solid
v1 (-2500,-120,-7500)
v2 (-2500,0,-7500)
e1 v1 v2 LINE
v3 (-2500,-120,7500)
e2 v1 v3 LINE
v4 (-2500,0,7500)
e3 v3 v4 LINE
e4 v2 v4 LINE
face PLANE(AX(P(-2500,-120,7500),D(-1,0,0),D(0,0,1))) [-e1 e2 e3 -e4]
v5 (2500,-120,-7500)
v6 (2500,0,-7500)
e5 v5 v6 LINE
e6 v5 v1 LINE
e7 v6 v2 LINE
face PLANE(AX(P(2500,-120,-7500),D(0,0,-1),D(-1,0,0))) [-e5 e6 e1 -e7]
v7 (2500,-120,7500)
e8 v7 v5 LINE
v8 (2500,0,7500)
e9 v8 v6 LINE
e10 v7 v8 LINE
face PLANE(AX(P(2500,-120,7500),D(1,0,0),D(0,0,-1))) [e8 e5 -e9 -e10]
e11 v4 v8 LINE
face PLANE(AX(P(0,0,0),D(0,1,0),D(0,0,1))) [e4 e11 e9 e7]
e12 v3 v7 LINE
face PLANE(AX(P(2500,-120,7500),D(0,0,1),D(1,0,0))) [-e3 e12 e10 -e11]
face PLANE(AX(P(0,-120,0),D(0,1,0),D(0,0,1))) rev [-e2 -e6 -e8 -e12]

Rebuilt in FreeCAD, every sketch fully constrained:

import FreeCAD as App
import Part
import Sketcher


def add_polygon(sketch, points):
    """Adds a closed chain of lines whose ends are joined by coincident constraints."""
    first, n = sketch.GeometryCount, len(points)
    for a, b in zip(points, points[1:] + points[:1]):
        sketch.addGeometry(Part.LineSegment(App.Vector(*a, 0), App.Vector(*b, 0)), False)
    for i in range(n):
        sketch.addConstraint(Sketcher.Constraint("Coincident", first + i, 2, first + (i + 1) % n, 1))

doc = App.newDocument("Part")
body = doc.addObject("PartDesign::Body", "Body")

sketch1 = body.newObject("Sketcher::SketchObject", "Sketch")
sketch1.AttachmentSupport = (doc.getObject("XZ_Plane"), [""])
sketch1.MapMode = "FlatFace"
add_polygon(sketch1, [(-2500, -7500), (-2500, 7500), (2500, 7500), (2500, -7500)])
sketch1.addConstraint([
    Sketcher.Constraint("Vertical", 0),
    Sketcher.Constraint("Horizontal", 1),
    Sketcher.Constraint("Vertical", 2),
    Sketcher.Constraint("Horizontal", 3),
    Sketcher.Constraint("Symmetric", 0, 2, 2, 2, -1, 1),
    Sketcher.Constraint("DistanceX", 1, 1, 1, 2, 5000.0),
    Sketcher.Constraint("DistanceY", 0, 1, 0, 2, 15000.0),
])
pad1 = body.newObject("PartDesign::Pad", "Pad")
pad1.Profile = sketch1
pad1.Length = 120

doc.recompute()
